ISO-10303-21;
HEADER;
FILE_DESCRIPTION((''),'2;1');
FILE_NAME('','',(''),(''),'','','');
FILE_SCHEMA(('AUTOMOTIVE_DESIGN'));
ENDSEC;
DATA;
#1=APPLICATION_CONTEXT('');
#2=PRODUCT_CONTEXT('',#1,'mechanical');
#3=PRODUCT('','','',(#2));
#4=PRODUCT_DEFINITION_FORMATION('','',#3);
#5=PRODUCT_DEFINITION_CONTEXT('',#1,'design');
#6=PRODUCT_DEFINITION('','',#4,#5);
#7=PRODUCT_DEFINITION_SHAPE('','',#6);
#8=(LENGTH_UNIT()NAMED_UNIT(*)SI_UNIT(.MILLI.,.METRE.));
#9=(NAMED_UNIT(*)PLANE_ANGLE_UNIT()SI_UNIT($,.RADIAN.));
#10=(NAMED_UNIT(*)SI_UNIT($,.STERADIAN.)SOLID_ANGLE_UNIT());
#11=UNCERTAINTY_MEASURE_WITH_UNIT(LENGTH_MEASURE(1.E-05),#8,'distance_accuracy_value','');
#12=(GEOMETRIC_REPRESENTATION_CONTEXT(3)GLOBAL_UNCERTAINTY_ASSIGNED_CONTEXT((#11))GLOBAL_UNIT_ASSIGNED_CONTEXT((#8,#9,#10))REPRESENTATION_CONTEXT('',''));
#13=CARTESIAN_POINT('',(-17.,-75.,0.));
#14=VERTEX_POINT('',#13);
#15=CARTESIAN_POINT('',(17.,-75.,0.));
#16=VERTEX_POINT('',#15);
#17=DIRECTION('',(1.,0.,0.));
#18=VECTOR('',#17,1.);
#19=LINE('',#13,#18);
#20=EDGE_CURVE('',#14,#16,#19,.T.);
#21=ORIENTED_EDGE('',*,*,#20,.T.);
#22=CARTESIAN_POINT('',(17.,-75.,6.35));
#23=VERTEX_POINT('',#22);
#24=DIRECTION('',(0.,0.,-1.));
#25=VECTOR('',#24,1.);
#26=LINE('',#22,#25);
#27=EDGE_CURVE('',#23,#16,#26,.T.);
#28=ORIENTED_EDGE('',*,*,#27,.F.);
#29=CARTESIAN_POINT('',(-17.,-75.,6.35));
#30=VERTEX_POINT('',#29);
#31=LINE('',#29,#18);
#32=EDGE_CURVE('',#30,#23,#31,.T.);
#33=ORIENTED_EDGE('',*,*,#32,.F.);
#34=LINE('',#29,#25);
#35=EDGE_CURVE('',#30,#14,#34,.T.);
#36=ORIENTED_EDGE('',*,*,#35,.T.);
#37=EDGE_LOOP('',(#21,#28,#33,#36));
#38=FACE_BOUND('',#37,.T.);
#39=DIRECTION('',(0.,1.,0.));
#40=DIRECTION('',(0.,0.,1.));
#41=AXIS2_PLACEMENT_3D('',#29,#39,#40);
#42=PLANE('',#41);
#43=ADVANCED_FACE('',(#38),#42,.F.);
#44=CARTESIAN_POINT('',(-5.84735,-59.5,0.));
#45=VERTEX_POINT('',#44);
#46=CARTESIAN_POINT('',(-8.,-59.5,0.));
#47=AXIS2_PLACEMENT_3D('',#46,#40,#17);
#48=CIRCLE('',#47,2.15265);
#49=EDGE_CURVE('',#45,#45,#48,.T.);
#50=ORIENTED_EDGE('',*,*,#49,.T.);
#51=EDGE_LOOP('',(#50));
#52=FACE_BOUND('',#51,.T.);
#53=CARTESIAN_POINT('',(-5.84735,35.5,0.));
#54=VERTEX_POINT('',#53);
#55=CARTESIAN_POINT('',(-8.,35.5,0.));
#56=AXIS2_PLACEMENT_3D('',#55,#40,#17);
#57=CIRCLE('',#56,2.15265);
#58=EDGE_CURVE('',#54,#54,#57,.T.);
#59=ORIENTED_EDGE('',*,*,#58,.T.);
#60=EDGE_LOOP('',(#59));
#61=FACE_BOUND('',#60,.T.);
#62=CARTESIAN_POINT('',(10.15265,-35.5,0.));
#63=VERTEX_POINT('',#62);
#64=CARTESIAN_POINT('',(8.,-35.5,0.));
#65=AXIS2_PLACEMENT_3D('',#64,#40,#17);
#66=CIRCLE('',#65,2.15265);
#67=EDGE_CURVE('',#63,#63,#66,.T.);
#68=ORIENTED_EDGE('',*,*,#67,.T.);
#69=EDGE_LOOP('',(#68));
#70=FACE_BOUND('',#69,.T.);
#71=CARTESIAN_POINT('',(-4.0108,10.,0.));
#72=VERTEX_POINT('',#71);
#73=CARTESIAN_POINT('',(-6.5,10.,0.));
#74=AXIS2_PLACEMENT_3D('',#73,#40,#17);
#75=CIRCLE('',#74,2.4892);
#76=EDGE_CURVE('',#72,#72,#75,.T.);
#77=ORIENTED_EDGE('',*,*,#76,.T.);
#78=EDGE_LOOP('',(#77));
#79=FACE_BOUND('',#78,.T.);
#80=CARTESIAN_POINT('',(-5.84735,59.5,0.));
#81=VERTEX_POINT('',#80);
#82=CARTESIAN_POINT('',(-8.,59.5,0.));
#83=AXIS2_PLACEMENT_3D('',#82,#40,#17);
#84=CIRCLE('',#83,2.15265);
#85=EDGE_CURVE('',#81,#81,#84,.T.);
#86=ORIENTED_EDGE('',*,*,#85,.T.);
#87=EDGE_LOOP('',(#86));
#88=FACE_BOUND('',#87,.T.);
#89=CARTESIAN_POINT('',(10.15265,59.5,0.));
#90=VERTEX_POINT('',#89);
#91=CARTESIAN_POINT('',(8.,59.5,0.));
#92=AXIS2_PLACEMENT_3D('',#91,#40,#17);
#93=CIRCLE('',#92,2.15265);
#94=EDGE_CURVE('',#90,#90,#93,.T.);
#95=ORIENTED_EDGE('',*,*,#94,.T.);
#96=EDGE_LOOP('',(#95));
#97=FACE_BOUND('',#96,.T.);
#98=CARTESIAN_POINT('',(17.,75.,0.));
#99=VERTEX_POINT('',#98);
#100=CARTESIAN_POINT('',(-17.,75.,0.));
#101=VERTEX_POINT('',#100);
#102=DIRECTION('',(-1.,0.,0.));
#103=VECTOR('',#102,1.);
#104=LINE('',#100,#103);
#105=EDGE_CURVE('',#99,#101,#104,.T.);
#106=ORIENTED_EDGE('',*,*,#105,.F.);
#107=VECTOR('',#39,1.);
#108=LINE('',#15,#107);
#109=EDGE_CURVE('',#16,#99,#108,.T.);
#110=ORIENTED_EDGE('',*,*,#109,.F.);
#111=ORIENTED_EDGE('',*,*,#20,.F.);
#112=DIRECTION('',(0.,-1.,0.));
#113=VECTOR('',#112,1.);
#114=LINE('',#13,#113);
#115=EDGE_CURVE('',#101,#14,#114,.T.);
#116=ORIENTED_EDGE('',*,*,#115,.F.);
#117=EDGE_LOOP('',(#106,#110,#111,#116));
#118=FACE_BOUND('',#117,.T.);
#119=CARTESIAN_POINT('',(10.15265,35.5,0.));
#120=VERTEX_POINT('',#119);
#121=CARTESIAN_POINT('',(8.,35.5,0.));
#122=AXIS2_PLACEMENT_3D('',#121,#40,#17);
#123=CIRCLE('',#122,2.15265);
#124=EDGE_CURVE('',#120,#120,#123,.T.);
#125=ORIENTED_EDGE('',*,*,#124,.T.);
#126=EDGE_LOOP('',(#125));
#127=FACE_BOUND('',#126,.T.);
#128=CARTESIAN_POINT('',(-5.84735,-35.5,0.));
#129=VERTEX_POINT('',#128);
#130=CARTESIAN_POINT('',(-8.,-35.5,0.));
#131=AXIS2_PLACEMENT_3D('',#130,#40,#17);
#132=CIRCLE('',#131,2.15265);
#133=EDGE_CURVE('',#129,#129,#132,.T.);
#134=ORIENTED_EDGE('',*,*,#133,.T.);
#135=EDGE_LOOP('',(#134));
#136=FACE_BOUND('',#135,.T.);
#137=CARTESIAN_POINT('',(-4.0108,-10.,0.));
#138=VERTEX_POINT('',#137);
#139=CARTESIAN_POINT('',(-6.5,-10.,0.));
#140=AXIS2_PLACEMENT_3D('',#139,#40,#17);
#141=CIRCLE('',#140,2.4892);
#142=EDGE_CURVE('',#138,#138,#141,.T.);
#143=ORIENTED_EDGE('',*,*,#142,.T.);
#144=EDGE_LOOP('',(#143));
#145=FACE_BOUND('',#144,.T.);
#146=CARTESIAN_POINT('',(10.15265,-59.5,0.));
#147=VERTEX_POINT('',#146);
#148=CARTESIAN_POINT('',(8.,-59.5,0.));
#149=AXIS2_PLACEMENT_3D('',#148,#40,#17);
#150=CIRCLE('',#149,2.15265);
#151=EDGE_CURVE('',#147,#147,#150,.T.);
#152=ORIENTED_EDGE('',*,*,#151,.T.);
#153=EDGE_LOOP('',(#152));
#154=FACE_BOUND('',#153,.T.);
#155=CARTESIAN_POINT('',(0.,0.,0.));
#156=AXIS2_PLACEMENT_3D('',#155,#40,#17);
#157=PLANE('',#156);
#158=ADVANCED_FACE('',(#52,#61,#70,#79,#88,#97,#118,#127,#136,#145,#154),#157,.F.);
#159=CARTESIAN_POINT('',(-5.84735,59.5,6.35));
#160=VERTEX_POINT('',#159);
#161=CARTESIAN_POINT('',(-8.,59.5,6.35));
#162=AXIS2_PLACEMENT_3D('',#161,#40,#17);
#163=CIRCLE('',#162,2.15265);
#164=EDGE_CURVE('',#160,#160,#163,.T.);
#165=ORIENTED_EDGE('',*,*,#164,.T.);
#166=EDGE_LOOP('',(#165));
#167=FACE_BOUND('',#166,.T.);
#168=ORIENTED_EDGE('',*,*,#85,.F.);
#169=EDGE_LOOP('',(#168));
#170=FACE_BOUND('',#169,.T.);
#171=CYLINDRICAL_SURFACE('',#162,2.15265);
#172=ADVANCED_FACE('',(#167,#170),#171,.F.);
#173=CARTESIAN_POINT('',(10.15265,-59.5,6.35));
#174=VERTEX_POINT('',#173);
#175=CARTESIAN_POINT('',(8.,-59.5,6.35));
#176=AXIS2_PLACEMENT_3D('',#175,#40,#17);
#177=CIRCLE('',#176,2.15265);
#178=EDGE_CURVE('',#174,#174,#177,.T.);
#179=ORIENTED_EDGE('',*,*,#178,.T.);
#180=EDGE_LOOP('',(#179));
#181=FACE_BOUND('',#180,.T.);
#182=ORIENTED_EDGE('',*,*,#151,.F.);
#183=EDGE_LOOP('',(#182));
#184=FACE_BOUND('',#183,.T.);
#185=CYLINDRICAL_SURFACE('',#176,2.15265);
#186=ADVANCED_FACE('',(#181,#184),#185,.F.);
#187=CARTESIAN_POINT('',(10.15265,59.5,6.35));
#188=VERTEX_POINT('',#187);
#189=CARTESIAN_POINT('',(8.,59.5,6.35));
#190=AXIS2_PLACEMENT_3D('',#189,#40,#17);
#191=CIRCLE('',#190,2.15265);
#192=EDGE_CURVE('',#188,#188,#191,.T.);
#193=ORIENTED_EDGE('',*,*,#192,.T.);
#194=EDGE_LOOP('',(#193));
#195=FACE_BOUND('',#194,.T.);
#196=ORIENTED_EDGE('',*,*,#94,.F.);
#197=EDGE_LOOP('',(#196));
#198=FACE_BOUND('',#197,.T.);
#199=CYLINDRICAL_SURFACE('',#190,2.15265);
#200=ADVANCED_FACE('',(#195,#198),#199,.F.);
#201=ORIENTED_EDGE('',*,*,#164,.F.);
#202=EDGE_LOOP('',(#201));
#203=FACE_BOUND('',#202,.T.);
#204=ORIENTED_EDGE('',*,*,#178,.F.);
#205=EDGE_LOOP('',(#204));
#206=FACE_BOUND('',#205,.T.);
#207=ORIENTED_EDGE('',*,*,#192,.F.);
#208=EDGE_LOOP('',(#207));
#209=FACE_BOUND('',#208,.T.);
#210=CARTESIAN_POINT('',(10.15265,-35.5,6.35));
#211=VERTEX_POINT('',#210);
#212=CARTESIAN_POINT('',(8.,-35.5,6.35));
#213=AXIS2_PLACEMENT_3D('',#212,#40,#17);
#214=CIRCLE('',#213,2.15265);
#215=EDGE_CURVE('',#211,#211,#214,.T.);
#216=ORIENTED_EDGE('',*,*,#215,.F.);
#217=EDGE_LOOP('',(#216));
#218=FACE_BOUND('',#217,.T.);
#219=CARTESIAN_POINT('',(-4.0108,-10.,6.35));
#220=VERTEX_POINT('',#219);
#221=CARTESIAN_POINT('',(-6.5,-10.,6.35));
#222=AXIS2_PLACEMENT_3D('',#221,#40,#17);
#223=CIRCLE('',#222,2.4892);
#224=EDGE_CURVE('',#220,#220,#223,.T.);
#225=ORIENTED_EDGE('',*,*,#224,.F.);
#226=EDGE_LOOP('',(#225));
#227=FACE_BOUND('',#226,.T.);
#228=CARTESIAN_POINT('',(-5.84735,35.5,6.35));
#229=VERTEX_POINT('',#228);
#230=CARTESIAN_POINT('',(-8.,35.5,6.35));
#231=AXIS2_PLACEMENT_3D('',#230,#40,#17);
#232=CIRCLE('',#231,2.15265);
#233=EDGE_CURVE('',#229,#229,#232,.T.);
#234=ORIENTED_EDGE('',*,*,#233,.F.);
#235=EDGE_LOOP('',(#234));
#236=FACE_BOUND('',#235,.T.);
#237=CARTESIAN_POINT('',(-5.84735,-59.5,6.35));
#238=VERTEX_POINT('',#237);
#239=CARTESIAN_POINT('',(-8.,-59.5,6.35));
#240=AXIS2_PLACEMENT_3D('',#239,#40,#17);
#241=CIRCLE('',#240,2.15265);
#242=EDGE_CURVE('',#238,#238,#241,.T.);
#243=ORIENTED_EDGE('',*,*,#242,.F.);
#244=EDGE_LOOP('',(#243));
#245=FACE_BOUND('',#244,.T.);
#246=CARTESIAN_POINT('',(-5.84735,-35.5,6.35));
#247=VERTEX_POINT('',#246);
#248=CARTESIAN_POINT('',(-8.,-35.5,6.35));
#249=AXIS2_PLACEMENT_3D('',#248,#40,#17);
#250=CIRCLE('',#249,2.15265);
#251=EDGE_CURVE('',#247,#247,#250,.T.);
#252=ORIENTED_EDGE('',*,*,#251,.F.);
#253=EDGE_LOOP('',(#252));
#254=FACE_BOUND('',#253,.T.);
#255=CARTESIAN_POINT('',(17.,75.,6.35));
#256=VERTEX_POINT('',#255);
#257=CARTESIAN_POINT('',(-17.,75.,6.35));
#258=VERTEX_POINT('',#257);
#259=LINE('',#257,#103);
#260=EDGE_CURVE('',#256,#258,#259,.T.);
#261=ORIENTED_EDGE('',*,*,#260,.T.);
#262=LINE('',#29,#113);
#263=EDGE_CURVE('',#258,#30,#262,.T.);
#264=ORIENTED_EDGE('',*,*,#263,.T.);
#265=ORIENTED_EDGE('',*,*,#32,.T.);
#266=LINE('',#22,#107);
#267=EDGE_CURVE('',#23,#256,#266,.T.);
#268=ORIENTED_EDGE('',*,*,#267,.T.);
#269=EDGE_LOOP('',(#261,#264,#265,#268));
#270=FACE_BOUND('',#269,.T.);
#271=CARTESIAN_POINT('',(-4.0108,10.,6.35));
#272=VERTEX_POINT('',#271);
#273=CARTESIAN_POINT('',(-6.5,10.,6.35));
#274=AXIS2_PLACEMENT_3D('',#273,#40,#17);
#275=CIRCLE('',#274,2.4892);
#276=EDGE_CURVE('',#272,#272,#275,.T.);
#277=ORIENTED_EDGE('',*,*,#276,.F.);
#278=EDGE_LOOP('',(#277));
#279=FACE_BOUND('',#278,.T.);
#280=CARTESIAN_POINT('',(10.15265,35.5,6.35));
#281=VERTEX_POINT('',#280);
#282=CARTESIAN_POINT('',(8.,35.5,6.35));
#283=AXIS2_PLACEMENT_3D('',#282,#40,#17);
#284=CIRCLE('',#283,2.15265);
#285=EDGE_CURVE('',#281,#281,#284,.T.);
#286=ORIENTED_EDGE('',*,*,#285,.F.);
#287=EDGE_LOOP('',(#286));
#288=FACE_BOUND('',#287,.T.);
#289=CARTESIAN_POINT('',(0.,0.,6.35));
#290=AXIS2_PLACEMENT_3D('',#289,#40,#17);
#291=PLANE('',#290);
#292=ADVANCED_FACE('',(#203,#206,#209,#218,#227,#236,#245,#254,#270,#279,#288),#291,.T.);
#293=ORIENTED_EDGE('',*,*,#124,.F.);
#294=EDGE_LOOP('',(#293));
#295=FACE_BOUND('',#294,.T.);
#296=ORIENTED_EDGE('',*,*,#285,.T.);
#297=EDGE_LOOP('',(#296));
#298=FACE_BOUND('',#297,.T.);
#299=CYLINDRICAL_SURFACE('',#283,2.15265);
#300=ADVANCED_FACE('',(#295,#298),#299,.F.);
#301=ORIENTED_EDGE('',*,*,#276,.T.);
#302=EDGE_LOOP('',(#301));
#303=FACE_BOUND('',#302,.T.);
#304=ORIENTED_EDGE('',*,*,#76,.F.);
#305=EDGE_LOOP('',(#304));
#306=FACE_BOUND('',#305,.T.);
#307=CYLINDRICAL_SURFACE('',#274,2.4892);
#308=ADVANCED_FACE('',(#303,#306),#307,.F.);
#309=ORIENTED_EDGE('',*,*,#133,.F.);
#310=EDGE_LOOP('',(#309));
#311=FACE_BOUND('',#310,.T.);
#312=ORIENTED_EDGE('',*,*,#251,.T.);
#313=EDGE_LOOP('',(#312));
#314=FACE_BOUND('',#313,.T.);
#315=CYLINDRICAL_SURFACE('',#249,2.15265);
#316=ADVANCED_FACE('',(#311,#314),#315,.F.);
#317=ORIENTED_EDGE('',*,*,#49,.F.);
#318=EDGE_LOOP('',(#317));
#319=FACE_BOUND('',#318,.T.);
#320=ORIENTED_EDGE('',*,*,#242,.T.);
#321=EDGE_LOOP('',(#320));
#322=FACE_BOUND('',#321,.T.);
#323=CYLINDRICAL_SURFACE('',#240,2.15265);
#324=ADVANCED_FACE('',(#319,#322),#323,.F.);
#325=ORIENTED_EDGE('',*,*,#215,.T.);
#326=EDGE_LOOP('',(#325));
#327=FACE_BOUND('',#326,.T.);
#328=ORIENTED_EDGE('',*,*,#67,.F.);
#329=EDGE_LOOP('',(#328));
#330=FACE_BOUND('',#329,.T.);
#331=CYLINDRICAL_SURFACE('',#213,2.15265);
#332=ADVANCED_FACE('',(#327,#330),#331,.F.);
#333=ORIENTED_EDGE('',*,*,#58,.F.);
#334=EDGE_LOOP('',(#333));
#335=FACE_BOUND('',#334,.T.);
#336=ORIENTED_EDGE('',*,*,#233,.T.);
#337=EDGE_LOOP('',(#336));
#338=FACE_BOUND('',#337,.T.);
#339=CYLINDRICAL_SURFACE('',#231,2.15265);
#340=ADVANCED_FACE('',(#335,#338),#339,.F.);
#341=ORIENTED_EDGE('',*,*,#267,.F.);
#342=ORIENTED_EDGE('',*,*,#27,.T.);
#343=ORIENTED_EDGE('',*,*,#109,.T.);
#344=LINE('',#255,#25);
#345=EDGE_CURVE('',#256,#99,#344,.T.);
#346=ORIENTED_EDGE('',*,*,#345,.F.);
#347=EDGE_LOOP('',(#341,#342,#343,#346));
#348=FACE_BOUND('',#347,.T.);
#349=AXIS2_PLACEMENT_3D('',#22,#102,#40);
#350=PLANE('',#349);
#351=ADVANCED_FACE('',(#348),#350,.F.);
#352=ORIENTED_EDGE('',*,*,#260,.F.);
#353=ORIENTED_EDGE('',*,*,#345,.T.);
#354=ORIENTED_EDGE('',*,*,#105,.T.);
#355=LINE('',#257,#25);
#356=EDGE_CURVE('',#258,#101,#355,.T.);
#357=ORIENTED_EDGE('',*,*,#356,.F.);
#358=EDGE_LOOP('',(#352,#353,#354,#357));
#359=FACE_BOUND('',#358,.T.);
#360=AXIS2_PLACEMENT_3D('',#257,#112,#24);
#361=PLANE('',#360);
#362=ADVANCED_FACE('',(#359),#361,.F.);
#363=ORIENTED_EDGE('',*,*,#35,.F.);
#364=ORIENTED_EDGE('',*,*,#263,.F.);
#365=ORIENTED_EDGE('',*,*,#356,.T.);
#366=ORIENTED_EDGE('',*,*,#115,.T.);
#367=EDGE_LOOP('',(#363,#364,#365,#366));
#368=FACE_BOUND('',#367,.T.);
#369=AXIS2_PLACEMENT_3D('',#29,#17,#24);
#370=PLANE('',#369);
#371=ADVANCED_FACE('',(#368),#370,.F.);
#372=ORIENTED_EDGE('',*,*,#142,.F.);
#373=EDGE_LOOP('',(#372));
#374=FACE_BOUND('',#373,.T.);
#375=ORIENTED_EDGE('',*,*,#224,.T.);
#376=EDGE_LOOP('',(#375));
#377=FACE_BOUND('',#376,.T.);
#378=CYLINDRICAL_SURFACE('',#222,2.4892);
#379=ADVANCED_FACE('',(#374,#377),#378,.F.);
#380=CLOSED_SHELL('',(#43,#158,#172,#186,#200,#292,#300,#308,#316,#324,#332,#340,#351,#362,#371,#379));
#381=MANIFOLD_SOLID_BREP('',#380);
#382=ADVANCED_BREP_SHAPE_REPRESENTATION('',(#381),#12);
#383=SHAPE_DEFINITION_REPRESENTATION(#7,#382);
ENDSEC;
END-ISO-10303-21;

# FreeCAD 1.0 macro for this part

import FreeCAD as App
import Part
import Sketcher
Q = App.Units.Quantity

doc = App.newDocument("Part")
body = doc.addObject("PartDesign::Body", "Body")

sketch1 = body.newObject("Sketcher::SketchObject", "Sketch")
sketch1.AttachmentSupport = (doc.getObject("XY_Plane"), [""])
sketch1.MapMode = "FlatFace"
sketch1.addGeometry(Part.LineSegment(App.Vector(-17, 75, 0), App.Vector(-17, -75, 0)), False)
sketch1.addGeometry(Part.LineSegment(App.Vector(-17, -75, 0), App.Vector(17, -75, 0)), False)
sketch1.addGeometry(Part.LineSegment(App.Vector(17, -75, 0), App.Vector(17, 75, 0)), False)
sketch1.addGeometry(Part.LineSegment(App.Vector(17, 75, 0), App.Vector(-17, 75, 0)), False)
sketch1.addConstraint(Sketcher.Constraint("Coincident", 0, 2, 1, 1))
sketch1.addConstraint(Sketcher.Constraint("Coincident", 1, 2, 2, 1))
sketch1.addConstraint(Sketcher.Constraint("Coincident", 2, 2, 3, 1))
sketch1.addConstraint(Sketcher.Constraint("Coincident", 3, 2, 0, 1))
sketch1.addConstraint(Sketcher.Constraint("Vertical", 0))
sketch1.addConstraint(Sketcher.Constraint("Horizontal", 1))
sketch1.addConstraint(Sketcher.Constraint("Vertical", 2))
sketch1.addConstraint(Sketcher.Constraint("Horizontal", 3))
sketch1.addConstraint(Sketcher.Constraint("Symmetric", 0, 2, 2, 2, -1, 1))
sketch1.addConstraint(Sketcher.Constraint("DistanceX", 1, 1, 1, 2, Q("34 mm")))
sketch1.addConstraint(Sketcher.Constraint("DistanceY", 0, 2, 0, 1, Q("150 mm")))
pad1 = body.newObject("PartDesign::Pad", "Pad")
pad1.Profile = sketch1
pad1.Length = 6.35

sketch2 = body.newObject("Sketcher::SketchObject", "Sketch001")
sketch2.AttachmentSupport = (doc.getObject("XY_Plane"), [""])
sketch2.MapMode = "FlatFace"
sketch2.AttachmentOffset = App.Placement(App.Vector(0, 0, 6.35), App.Rotation())
sketch2.addGeometry(Part.Circle(App.Vector(-8, 59.5, 0), App.Vector(0, 0, 1), 2.2), False)
sketch2.addGeometry(Part.Circle(App.Vector(8, 59.5, 0), App.Vector(0, 0, 1), 2.2), False)
sketch2.addGeometry(Part.Circle(App.Vector(8, 35.5, 0), App.Vector(0, 0, 1), 2.2), False)
sketch2.addGeometry(Part.Circle(App.Vector(-8, 35.5, 0), App.Vector(0, 0, 1), 2.2), False)
sketch2.addGeometry(Part.Circle(App.Vector(-8, -35.5, 0), App.Vector(0, 0, 1), 2.2), False)
sketch2.addGeometry(Part.Circle(App.Vector(-8, -59.5, 0), App.Vector(0, 0, 1), 2.2), False)
sketch2.addGeometry(Part.Circle(App.Vector(8, -59.5, 0), App.Vector(0, 0, 1), 2.2), False)
sketch2.addGeometry(Part.Circle(App.Vector(8, -35.5, 0), App.Vector(0, 0, 1), 2.2), False)
sketch2.addConstraint(Sketcher.Constraint("Equal", 0, 1))
sketch2.addConstraint(Sketcher.Constraint("Equal", 1, 2))
sketch2.addConstraint(Sketcher.Constraint("Equal", 2, 3))
sketch2.addConstraint(Sketcher.Constraint("Equal", 3, 4))
sketch2.addConstraint(Sketcher.Constraint("Equal", 4, 5))
sketch2.addConstraint(Sketcher.Constraint("Equal", 5, 6))
sketch2.addConstraint(Sketcher.Constraint("Equal", 6, 7))
sketch2.addConstraint(Sketcher.Constraint("Symmetric", 2, 3, 4, 3, -1, 1))
sketch2.addConstraint(Sketcher.Constraint("Symmetric", 1, 3, 5, 3, -1, 1))
sketch2.addConstraint(Sketcher.Constraint("Symmetric", 0, 3, 6, 3, -1, 1))
sketch2.addConstraint(Sketcher.Constraint("Symmetric", 3, 3, 7, 3, -1, 1))
sketch2.addConstraint(Sketcher.Constraint("Symmetric", 0, 3, 1, 3, -2))
sketch2.addConstraint(Sketcher.Constraint("Symmetric", 2, 3, 3, 3, -2))
sketch2.addConstraint(Sketcher.Constraint("Vertical", 1, 3, 2, 3))
sketch2.addConstraint(Sketcher.Constraint("DistanceX", 0, 3, -1, 1, Q("8 mm")))
sketch2.addConstraint(Sketcher.Constraint("DistanceY", 2, 3, 1, 3, Q("24 mm")))
sketch2.addConstraint(Sketcher.Constraint("DistanceY", 4, 3, 3, 3, Q("71 mm")))
sketch2.addConstraint(Sketcher.Constraint("Diameter", 0, Q("4.3053 mm")))
doc.recompute()
hole = body.newObject("PartDesign::Hole", "Hole")
hole.Profile = sketch2
hole.ThreadType = "None"
hole.Diameter = 4.3053
hole.DepthType = "ThroughAll"

sketch3 = body.newObject("Sketcher::SketchObject", "Sketch002")
sketch3.AttachmentSupport = (doc.getObject("XY_Plane"), [""])
sketch3.MapMode = "FlatFace"
sketch3.AttachmentOffset = App.Placement(App.Vector(0, 0, 6.35), App.Rotation())
sketch3.addGeometry(Part.Circle(App.Vector(-6.5, 10, 0), App.Vector(0, 0, 1), 2.5), False)
sketch3.addGeometry(Part.Circle(App.Vector(-6.5, -10, 0), App.Vector(0, 0, 1), 2.5), False)
sketch3.addConstraint(Sketcher.Constraint("Equal", 0, 1))
sketch3.addConstraint(Sketcher.Constraint("Symmetric", 0, 3, 1, 3, -1))
sketch3.addConstraint(Sketcher.Constraint("DistanceY", -1, 1, 0, 3, Q("10 mm")))
sketch3.addConstraint(Sketcher.Constraint("Diameter", 0, Q("4.9784 mm")))
sketch3.addConstraint(Sketcher.Constraint("DistanceX", 0, 3, -1, 1, Q("6.5 mm")))
doc.recompute()
hole2 = body.newObject("PartDesign::Hole", "Hole001")
hole2.Profile = sketch3
hole2.ThreadType = "None"
hole2.Diameter = 4.9784
hole2.DepthType = "ThroughAll"

doc.recompute()
